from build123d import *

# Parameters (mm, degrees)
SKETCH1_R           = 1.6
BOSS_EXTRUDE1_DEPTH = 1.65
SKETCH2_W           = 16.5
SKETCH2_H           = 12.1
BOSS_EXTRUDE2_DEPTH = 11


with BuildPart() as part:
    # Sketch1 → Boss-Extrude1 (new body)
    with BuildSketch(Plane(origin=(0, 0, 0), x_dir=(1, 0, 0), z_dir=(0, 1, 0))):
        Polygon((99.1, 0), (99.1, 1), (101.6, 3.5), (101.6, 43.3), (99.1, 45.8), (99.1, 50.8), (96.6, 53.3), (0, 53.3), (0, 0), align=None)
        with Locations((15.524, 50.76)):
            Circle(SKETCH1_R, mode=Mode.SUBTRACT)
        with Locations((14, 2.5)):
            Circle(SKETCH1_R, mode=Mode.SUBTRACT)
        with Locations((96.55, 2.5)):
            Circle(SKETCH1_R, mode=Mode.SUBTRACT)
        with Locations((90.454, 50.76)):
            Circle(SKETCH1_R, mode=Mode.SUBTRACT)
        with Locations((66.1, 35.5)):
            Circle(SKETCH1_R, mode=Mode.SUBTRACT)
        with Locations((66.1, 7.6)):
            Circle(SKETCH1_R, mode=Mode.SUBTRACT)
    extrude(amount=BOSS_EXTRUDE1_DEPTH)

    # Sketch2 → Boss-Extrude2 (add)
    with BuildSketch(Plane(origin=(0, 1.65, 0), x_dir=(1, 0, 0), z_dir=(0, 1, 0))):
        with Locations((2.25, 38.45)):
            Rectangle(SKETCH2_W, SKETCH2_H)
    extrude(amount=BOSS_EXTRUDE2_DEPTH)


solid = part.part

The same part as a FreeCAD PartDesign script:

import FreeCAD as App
import Part
import Sketcher
Q = App.Units.Quantity

doc = App.newDocument("Part")
body = doc.addObject("PartDesign::Body", "Body")

# Sketch on XZ plane
sketch1 = doc.addObject("Sketcher::SketchObject", "Sketch")
body.addObject(sketch1)
sketch1.AttachmentSupport = (doc.XZ_Plane, [""])
sketch1.MapMode = "FlatFace"
sketch1.addGeometry(Part.LineSegment(App.Vector(99.1, 0, 0), App.Vector(99.1, -1, 0)), False)
sketch1.addGeometry(Part.LineSegment(App.Vector(99.1, -1, 0), App.Vector(101.6, -3.5, 0)), False)
sketch1.addGeometry(Part.LineSegment(App.Vector(101.6, -3.5, 0), App.Vector(101.6, -43.3, 0)), False)
sketch1.addGeometry(Part.LineSegment(App.Vector(101.6, -43.3, 0), App.Vector(99.1, -45.8, 0)), False)
sketch1.addGeometry(Part.LineSegment(App.Vector(99.1, -45.8, 0), App.Vector(99.1, -50.8, 0)), False)
sketch1.addGeometry(Part.LineSegment(App.Vector(99.1, -50.8, 0), App.Vector(96.6, -53.3, 0)), False)
sketch1.addGeometry(Part.LineSegment(App.Vector(96.6, -53.3, 0), App.Vector(0, -53.3, 0)), False)
sketch1.addGeometry(Part.LineSegment(App.Vector(0, -53.3, 0), App.Vector(0, 0, 0)), False)
sketch1.addGeometry(Part.LineSegment(App.Vector(0, 0, 0), App.Vector(99.1, 0, 0)), False)
sketch1.addGeometry(Part.Circle(App.Vector(14, -2.5, 0), App.Vector(0, 0, 1), 1.6), False)
sketch1.addGeometry(Part.Circle(App.Vector(66.1, -7.6, 0), App.Vector(0, 0, 1), 1.6), False)
sketch1.addGeometry(Part.Circle(App.Vector(96.5, -2.5, 0), App.Vector(0, 0, 1), 1.6), False)
sketch1.addGeometry(Part.Circle(App.Vector(15.5, -50.8, 0), App.Vector(0, 0, 1), 1.6), False)
sketch1.addGeometry(Part.Circle(App.Vector(66.1, -35.5, 0), App.Vector(0, 0, 1), 1.6), False)
sketch1.addGeometry(Part.Circle(App.Vector(90.5, -50.8, 0), App.Vector(0, 0, 1), 1.6), False)
sketch1.addConstraint(Sketcher.Constraint("Coincident", 0, 2, 1, 1))
sketch1.addConstraint(Sketcher.Constraint("Coincident", 1, 2, 2, 1))
sketch1.addConstraint(Sketcher.Constraint("Coincident", 2, 2, 3, 1))
sketch1.addConstraint(Sketcher.Constraint("Coincident", 3, 2, 4, 1))
sketch1.addConstraint(Sketcher.Constraint("Coincident", 4, 2, 5, 1))
sketch1.addConstraint(Sketcher.Constraint("Coincident", 5, 2, 6, 1))
sketch1.addConstraint(Sketcher.Constraint("Coincident", 6, 2, 7, 1))
sketch1.addConstraint(Sketcher.Constraint("Coincident", 7, 2, 8, 1))
sketch1.addConstraint(Sketcher.Constraint("Coincident", 8, 2, 0, 1))
sketch1.addConstraint(Sketcher.Constraint("Vertical", 0))
sketch1.addConstraint(Sketcher.Constraint("Vertical", 2))
sketch1.addConstraint(Sketcher.Constraint("Vertical", 4))
sketch1.addConstraint(Sketcher.Constraint("Horizontal", 6))
sketch1.addConstraint(Sketcher.Constraint("Vertical", 7))
sketch1.addConstraint(Sketcher.Constraint("Horizontal", 8))
sketch1.addConstraint(Sketcher.Constraint("Coincident", 7, 2, -1, 1))
sketch1.addConstraint(Sketcher.Constraint("Equal", 9, 10))
sketch1.addConstraint(Sketcher.Constraint("Equal", 10, 11))
sketch1.addConstraint(Sketcher.Constraint("Equal", 11, 12))
sketch1.addConstraint(Sketcher.Constraint("Equal", 12, 13))
sketch1.addConstraint(Sketcher.Constraint("Equal", 13, 14))
sketch1.addConstraint(Sketcher.Constraint("Perpendicular", 1, 3))
sketch1.addConstraint(Sketcher.Constraint("Parallel", 3, 5))
sketch1.addConstraint(Sketcher.Constraint("Horizontal", 9, 3, 11, 3))
sketch1.addConstraint(Sketcher.Constraint("Horizontal", 12, 3, 14, 3))
sketch1.addConstraint(Sketcher.Constraint("Vertical", 10, 3, 13, 3))
sketch1.addConstraint(Sketcher.Constraint("Vertical", 0, 2, 3, 2))
sketch1.addConstraint(Sketcher.Constraint("Equal", 1, 3))
sketch1.addConstraint(Sketcher.Constraint("Equal", 3, 5))
sketch1.addConstraint(Sketcher.Constraint("Diameter", 9, Q("3.2 mm")))
sketch1.addConstraint(Sketcher.Constraint("DistanceY", 0, 2, 0, 1, Q("1 mm")))
sketch1.addConstraint(Sketcher.Constraint("DistanceY", 4, 2, 4, 1, Q("5 mm")))
sketch1.addConstraint(Sketcher.Constraint("DistanceX", 6, 2, 6, 1, Q("96.6 mm")))
sketch1.addConstraint(Sketcher.Constraint("DistanceX", 8, 1, 8, 2, Q("99.1 mm")))
sketch1.addConstraint(Sketcher.Constraint("DistanceY", 2, 2, 2, 1, Q("39.8 mm")))
sketch1.addConstraint(Sketcher.Constraint("DistanceX", -1, 1, 9, 3, Q("14 mm")))
sketch1.addConstraint(Sketcher.Constraint("DistanceY", 13, 3, 11, 3, Q("33 mm")))
sketch1.addConstraint(Sketcher.Constraint("DistanceX", 10, 3, 0, 2, Q("33 mm")))
sketch1.addConstraint(Sketcher.Constraint("DistanceY", 1, 2, 11, 3, Q("1 mm")))
sketch1.addConstraint(Sketcher.Constraint("DistanceY", 10, 3, -1, 1, Q("7.6 mm")))
sketch1.addConstraint(Sketcher.Constraint("DistanceX", -1, 1, 11, 3, Q("96.55 mm")))
sketch1.addConstraint(Sketcher.Constraint("DistanceY", 12, 3, -1, 1, Q("50.76 mm")))
sketch1.addConstraint(Sketcher.Constraint("DistanceX", 12, 3, 14, 3, Q("74.93 mm")))
sketch1.addConstraint(Sketcher.Constraint("DistanceX", -1, 1, 12, 3, Q("15.524 mm")))
pad1 = doc.addObject("PartDesign::Pad", "Pad")
body.addObject(pad1)
pad1.Profile = sketch1
pad1.Length = 1.65
pad1.Reversed = True

# Sketch on XZ plane
sketch2 = doc.addObject("Sketcher::SketchObject", "Sketch001")
body.addObject(sketch2)
sketch2.AttachmentSupport = (doc.XZ_Plane, [""])
sketch2.MapMode = "FlatFace"
sketch2.AttachmentOffset = App.Placement(App.Vector(0, 0, -1.65), App.Rotation())
sketch2.addGeometry(Part.LineSegment(App.Vector(-6, -44, 0), App.Vector(-6, -32, 0)), False)
sketch2.addGeometry(Part.LineSegment(App.Vector(-6, -32, 0), App.Vector(10, -32, 0)), False)
sketch2.addGeometry(Part.LineSegment(App.Vector(10, -32, 0), App.Vector(10, -44, 0)), False)
sketch2.addGeometry(Part.LineSegment(App.Vector(10, -44, 0), App.Vector(-6, -44, 0)), False)
sketch2.addConstraint(Sketcher.Constraint("Coincident", 0, 2, 1, 1))
sketch2.addConstraint(Sketcher.Constraint("Coincident", 1, 2, 2, 1))
sketch2.addConstraint(Sketcher.Constraint("Coincident", 2, 2, 3, 1))
sketch2.addConstraint(Sketcher.Constraint("Coincident", 3, 2, 0, 1))
sketch2.addConstraint(Sketcher.Constraint("Vertical", 0))
sketch2.addConstraint(Sketcher.Constraint("Horizontal", 1))
sketch2.addConstraint(Sketcher.Constraint("Vertical", 2))
sketch2.addConstraint(Sketcher.Constraint("Horizontal", 3))
sketch2.addConstraint(Sketcher.Constraint("DistanceX", 1, 1, 1, 2, Q("16.5 mm")))
sketch2.addConstraint(Sketcher.Constraint("DistanceY", 0, 1, 0, 2, Q("12.1 mm")))
sketch2.addConstraint(Sketcher.Constraint("DistanceX", 0, 2, -1, 1, Q("6 mm")))
sketch2.addConstraint(Sketcher.Constraint("DistanceY", 0, 2, -1, 1, Q("32.4 mm")))
pad2 = doc.addObject("PartDesign::Pad", "Pad001")
body.addObject(pad2)
pad2.Profile = sketch2
pad2.Length = 11
pad2.Reversed = True

doc.recompute()
